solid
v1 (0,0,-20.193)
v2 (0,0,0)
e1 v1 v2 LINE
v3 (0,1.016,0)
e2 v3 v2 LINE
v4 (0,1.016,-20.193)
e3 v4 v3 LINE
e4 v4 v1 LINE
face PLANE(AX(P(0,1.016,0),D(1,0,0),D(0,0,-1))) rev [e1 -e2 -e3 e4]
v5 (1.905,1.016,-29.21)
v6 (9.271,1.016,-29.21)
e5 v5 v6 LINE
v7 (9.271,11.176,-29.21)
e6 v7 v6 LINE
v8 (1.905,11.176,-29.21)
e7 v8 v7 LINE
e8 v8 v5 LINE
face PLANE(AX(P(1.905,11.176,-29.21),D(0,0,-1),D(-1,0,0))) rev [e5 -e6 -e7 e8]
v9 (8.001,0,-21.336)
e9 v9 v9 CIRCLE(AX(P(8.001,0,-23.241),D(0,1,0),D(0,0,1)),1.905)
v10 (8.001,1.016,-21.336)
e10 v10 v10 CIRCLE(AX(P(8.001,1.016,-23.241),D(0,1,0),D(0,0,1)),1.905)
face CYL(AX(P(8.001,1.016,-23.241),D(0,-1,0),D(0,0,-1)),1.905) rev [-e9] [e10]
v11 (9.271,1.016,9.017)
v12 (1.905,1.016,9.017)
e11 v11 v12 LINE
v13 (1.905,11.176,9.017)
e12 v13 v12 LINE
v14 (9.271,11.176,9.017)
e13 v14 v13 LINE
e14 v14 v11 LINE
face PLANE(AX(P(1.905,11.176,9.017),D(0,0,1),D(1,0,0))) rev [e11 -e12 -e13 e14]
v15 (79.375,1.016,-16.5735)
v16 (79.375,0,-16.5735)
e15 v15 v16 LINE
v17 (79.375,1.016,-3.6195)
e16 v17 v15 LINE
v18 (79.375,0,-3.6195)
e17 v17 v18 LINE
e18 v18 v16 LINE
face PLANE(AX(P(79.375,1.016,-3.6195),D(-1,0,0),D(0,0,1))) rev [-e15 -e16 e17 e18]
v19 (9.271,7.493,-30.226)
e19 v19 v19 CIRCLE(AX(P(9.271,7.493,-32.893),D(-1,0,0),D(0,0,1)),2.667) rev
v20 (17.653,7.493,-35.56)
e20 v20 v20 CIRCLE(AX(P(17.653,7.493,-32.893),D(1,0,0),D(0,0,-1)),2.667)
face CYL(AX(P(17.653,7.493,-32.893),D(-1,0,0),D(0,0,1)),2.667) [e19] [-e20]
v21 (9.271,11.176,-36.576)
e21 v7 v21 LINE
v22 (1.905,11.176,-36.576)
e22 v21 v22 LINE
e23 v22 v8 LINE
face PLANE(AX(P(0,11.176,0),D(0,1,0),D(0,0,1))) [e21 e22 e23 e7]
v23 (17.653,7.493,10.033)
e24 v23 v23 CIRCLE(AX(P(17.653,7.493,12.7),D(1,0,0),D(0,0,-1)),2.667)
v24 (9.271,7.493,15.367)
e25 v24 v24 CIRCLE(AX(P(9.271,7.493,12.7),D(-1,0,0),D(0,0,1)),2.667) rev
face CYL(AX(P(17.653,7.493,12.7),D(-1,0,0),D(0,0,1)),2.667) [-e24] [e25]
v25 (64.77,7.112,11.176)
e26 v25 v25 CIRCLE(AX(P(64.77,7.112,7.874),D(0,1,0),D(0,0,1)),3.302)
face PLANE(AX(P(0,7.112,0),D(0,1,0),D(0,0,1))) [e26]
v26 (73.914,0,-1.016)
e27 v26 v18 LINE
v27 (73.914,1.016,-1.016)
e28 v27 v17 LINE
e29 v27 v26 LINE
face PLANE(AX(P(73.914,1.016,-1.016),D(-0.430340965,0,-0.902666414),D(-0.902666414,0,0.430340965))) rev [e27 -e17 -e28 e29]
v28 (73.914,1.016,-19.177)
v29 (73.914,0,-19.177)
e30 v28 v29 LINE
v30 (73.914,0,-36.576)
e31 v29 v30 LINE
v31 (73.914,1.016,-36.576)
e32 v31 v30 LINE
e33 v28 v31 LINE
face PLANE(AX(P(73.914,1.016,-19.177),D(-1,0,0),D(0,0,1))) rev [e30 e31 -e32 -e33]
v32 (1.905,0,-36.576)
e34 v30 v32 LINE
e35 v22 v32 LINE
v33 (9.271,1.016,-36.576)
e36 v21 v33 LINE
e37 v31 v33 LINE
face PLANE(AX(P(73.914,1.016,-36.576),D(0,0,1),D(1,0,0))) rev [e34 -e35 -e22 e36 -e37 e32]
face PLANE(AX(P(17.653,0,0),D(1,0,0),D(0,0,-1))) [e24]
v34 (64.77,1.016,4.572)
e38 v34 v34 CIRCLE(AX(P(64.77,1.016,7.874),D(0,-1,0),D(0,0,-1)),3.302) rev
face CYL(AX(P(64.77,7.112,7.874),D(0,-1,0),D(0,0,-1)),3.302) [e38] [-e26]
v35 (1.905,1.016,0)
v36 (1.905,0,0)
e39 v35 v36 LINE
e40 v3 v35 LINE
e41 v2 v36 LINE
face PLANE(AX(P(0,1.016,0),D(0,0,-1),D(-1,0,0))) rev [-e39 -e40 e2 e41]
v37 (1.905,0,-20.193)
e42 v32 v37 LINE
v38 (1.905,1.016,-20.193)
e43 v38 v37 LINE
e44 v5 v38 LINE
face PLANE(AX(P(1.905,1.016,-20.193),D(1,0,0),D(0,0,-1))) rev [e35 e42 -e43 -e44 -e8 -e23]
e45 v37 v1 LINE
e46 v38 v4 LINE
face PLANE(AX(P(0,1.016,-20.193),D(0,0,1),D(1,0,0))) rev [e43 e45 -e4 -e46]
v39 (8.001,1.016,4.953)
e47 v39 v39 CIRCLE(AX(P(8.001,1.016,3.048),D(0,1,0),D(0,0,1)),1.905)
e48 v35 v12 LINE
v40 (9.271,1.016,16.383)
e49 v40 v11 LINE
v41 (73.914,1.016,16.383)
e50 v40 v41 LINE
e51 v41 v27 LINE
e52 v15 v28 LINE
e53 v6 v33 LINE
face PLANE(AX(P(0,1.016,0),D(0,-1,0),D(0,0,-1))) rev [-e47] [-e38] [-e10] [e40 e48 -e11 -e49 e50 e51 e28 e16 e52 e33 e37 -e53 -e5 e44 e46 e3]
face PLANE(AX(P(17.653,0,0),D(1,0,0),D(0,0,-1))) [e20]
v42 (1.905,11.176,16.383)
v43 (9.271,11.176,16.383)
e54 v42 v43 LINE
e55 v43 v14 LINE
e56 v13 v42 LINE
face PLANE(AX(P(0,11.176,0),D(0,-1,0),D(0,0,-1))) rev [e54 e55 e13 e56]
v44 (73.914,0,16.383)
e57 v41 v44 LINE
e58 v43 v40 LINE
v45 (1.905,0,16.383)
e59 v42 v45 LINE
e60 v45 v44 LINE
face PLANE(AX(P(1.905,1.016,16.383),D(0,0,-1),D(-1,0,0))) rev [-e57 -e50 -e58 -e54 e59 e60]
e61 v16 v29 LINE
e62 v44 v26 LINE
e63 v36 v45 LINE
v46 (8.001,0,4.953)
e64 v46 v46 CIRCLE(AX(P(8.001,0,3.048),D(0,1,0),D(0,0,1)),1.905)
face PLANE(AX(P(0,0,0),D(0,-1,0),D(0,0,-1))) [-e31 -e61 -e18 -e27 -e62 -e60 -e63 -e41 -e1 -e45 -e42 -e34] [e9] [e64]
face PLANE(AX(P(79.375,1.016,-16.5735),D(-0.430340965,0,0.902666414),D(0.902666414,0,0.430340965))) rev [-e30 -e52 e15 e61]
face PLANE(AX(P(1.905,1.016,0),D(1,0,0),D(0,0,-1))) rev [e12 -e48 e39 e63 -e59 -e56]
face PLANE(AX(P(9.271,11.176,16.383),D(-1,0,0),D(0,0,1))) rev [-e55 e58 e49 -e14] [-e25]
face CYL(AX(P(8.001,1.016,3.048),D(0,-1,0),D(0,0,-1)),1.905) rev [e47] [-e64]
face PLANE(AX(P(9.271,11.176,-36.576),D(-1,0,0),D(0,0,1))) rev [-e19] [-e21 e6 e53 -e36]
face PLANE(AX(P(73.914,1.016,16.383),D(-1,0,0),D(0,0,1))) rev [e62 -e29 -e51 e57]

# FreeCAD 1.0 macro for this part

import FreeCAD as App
import Part
import Sketcher

V = App.Vector
Q = App.Units.Quantity

doc = App.newDocument("Part")
body = doc.addObject("PartDesign::Body", "Body")

# Sketch on XZ plane
sketch1 = body.newObject("Sketcher::SketchObject", "Sketch")
sketch1.AttachmentSupport = (doc.getObject("XZ_Plane"), [""])
sketch1.MapMode = "FlatFace"
sketch1.addGeometry([
    Part.LineSegment(V(0, -20.2, 0), V(0, 0, 0)),  # 0
    Part.LineSegment(V(0, 0, 0), V(1.9, 0, 0)),  # 1
    Part.LineSegment(V(1.9, 0, 0), V(1.9, 16.4, 0)),  # 2
    Part.LineSegment(V(1.9, 16.4, 0), V(73.9, 16.4, 0)),  # 3
    Part.LineSegment(V(73.9, 16.4, 0), V(73.9, -1, 0)),  # 4
    Part.LineSegment(V(73.9, -1, 0), V(79.4, -3.6, 0)),  # 5
    Part.LineSegment(V(79.4, -3.6, 0), V(79.4, -16.6, 0)),  # 6
    Part.LineSegment(V(79.4, -16.6, 0), V(73.9, -19.2, 0)),  # 7
    Part.LineSegment(V(73.9, -19.2, 0), V(73.9, -36.6, 0)),  # 8
    Part.LineSegment(V(73.9, -36.6, 0), V(1.9, -36.6, 0)),  # 9
    Part.LineSegment(V(1.9, -36.6, 0), V(1.9, -20.2, 0)),  # 10
    Part.LineSegment(V(1.9, -20.2, 0), V(0, -20.2, 0)),  # 11
    Part.Circle(V(8, 3, 0), V(0, 0, 1), 1.9),  # 12
    Part.Circle(V(8, -23.2, 0), V(0, 0, 1), 1.9),  # 13
], False)
sketch1.addConstraint([
    Sketcher.Constraint("Coincident", 0, 2, 1, 1),
    Sketcher.Constraint("Coincident", 1, 2, 2, 1),
    Sketcher.Constraint("Coincident", 2, 2, 3, 1),
    Sketcher.Constraint("Coincident", 3, 2, 4, 1),
    Sketcher.Constraint("Coincident", 4, 2, 5, 1),
    Sketcher.Constraint("Coincident", 5, 2, 6, 1),
    Sketcher.Constraint("Coincident", 6, 2, 7, 1),
    Sketcher.Constraint("Coincident", 7, 2, 8, 1),
    Sketcher.Constraint("Coincident", 8, 2, 9, 1),
    Sketcher.Constraint("Coincident", 9, 2, 10, 1),
    Sketcher.Constraint("Coincident", 10, 2, 11, 1),
    Sketcher.Constraint("Coincident", 11, 2, 0, 1),
    Sketcher.Constraint("Vertical", 0),
    Sketcher.Constraint("Horizontal", 1),
    Sketcher.Constraint("Vertical", 2),
    Sketcher.Constraint("Horizontal", 3),
    Sketcher.Constraint("Vertical", 4),
    Sketcher.Constraint("Vertical", 6),
    Sketcher.Constraint("Vertical", 8),
    Sketcher.Constraint("Horizontal", 9),
    Sketcher.Constraint("Vertical", 10),
    Sketcher.Constraint("Horizontal", 11),
    Sketcher.Constraint("Coincident", 0, 2, -1, 1),
    Sketcher.Constraint("Equal", 12, 13),
    Sketcher.Constraint("Vertical", 12, 3, 13, 3),
    Sketcher.Constraint("Vertical", 4, 2, 7, 2),
    Sketcher.Constraint("Vertical", 2, 2, 9, 2),
    Sketcher.Constraint("Equal", 4, 8),
    Sketcher.Constraint("Equal", 2, 10),
    Sketcher.Constraint("Equal", 5, 7),
    Sketcher.Constraint("Diameter", 12, Q("0.15 in")),
    Sketcher.Constraint("DistanceY", 6, 2, 6, 1, Q("0.51 in")),
    Sketcher.Constraint("DistanceY", 7, 2, 3, 2, Q("1.4 in")),
    Sketcher.Constraint("DistanceX", 1, 1, 1, 2, Q("0.075 in")),
    Sketcher.Constraint("DistanceX", 3, 1, 3, 2, Q("2.835 in")),
    Sketcher.Constraint("DistanceY", 0, 1, 0, 2, Q("0.795 in")),
    Sketcher.Constraint("DistanceY", 2, 1, 2, 2, Q("0.645 in")),
    Sketcher.Constraint("DistanceY", -1, 1, 12, 3, Q("0.12 in")),
    Sketcher.Constraint("DistanceX", 1, 2, 12, 3, Q("0.24 in")),
    Sketcher.Constraint("DistanceY", 13, 3, 2, 2, Q("1.56 in")),
    Sketcher.Constraint("DistanceX", 12, 3, 5, 2, Q("2.81 in")),
])
pad1 = body.newObject("PartDesign::Pad", "Pad")
pad1.Profile = sketch1
pad1.Length = Q("0.04 in")
pad1.Reversed = True

# Sketch on XZ plane
sketch2 = body.newObject("Sketcher::SketchObject", "Sketch001")
sketch2.AttachmentSupport = (doc.getObject("XZ_Plane"), [""])
sketch2.MapMode = "FlatFace"
sketch2.AttachmentOffset = App.Placement(V(0, 0, -0.04 * 25.4), App.Rotation())
sketch2.addGeometry([
    Part.LineSegment(V(2, -37, 0), V(2, -29, 0)),  # 0
    Part.LineSegment(V(2, -29, 0), V(9, -29, 0)),  # 1
    Part.LineSegment(V(9, -29, 0), V(9, -37, 0)),  # 2
    Part.LineSegment(V(9, -37, 0), V(2, -37, 0)),  # 3
    Part.LineSegment(V(2, 9, 0), V(2, 16, 0)),  # 4
    Part.LineSegment(V(2, 16, 0), V(9, 16, 0)),  # 5
    Part.LineSegment(V(9, 16, 0), V(9, 9, 0)),  # 6
    Part.LineSegment(V(9, 9, 0), V(2, 9, 0)),  # 7
], False)
sketch2.addConstraint([
    Sketcher.Constraint("Coincident", 0, 2, 1, 1),
    Sketcher.Constraint("Coincident", 1, 2, 2, 1),
    Sketcher.Constraint("Coincident", 2, 2, 3, 1),
    Sketcher.Constraint("Coincident", 3, 2, 0, 1),
    Sketcher.Constraint("Coincident", 4, 2, 5, 1),
    Sketcher.Constraint("Coincident", 5, 2, 6, 1),
    Sketcher.Constraint("Coincident", 6, 2, 7, 1),
    Sketcher.Constraint("Coincident", 7, 2, 4, 1),
    Sketcher.Constraint("Vertical", 0),
    Sketcher.Constraint("Horizontal", 1),
    Sketcher.Constraint("Vertical", 2),
    Sketcher.Constraint("Horizontal", 3),
    Sketcher.Constraint("Vertical", 4),
    Sketcher.Constraint("Horizontal", 5),
    Sketcher.Constraint("Vertical", 6),
    Sketcher.Constraint("Horizontal", 7),
    Sketcher.Constraint("Vertical", 3, 2, 4, 2),
    Sketcher.Constraint("Vertical", 2, 2, 5, 2),
    Sketcher.Constraint("Equal", 7, 0),
    Sketcher.Constraint("Equal", 2, 4),
    Sketcher.Constraint("DistanceX", 1, 1, 1, 2, Q("0.29 in")),
    Sketcher.Constraint("DistanceY", 0, 2, -1, 1, Q("1.15 in")),
    Sketcher.Constraint("DistanceX", -1, 1, 0, 2, Q("0.075 in")),
    Sketcher.Constraint("DistanceY", -1, 1, 4, 2, Q("0.645 in")),
])
pad2 = body.newObject("PartDesign::Pad", "Pad001")
pad2.Profile = sketch2
pad2.Length = Q("0.4 in")
pad2.Reversed = True

# Sketch on YZ plane
sketch3 = body.newObject("Sketcher::SketchObject", "Sketch002")
sketch3.AttachmentSupport = (doc.getObject("YZ_Plane"), [""])
sketch3.MapMode = "FlatFace"
sketch3.AttachmentOffset = App.Placement(V(0, 0, 0.365 * 25.4), App.Rotation())
sketch3.addGeometry([
    Part.Circle(V(7.5, 12.7, 0), V(0, 0, 1), 2.7),
    Part.Circle(V(7.5, -32.9, 0), V(0, 0, 1), 2.7),
], False)
sketch3.addConstraint([
    Sketcher.Constraint("Equal", 0, 1),
    Sketcher.Constraint("Vertical", 0, 3, 1, 3),
    Sketcher.Constraint("Diameter", 0, Q("0.21 in")),
    Sketcher.Constraint("DistanceY", -1, 1, 0, 3, Q("0.5 in")),
    Sketcher.Constraint("DistanceX", -1, 1, 0, 3, Q("0.295 in")),
    Sketcher.Constraint("DistanceY", 1, 3, -1, 1, Q("1.295 in")),
])
pad3 = body.newObject("PartDesign::Pad", "Pad002")
pad3.Profile = sketch3
pad3.Length = Q("0.33 in")

# Sketch on XZ plane
sketch4 = body.newObject("Sketcher::SketchObject", "Sketch003")
sketch4.AttachmentSupport = (doc.getObject("XZ_Plane"), [""])
sketch4.MapMode = "FlatFace"
sketch4.AttachmentOffset = App.Placement(V(0, 0, -0.04 * 25.4), App.Rotation())
sketch4.addGeometry(Part.Circle(V(64.8, 7.9, 0), V(0, 0, 1), 3.3), False)
sketch4.addConstraint([
    Sketcher.Constraint("Diameter", 0, Q("0.26 in")),
    Sketcher.Constraint("DistanceX", -1, 1, 0, 3, Q("2.55 in")),
    Sketcher.Constraint("DistanceY", -1, 1, 0, 3, Q("0.31 in")),
])
pad4 = body.newObject("PartDesign::Pad", "Pad003")
pad4.Profile = sketch4
pad4.Length = Q("0.24 in")
pad4.Reversed = True

doc.recompute()
